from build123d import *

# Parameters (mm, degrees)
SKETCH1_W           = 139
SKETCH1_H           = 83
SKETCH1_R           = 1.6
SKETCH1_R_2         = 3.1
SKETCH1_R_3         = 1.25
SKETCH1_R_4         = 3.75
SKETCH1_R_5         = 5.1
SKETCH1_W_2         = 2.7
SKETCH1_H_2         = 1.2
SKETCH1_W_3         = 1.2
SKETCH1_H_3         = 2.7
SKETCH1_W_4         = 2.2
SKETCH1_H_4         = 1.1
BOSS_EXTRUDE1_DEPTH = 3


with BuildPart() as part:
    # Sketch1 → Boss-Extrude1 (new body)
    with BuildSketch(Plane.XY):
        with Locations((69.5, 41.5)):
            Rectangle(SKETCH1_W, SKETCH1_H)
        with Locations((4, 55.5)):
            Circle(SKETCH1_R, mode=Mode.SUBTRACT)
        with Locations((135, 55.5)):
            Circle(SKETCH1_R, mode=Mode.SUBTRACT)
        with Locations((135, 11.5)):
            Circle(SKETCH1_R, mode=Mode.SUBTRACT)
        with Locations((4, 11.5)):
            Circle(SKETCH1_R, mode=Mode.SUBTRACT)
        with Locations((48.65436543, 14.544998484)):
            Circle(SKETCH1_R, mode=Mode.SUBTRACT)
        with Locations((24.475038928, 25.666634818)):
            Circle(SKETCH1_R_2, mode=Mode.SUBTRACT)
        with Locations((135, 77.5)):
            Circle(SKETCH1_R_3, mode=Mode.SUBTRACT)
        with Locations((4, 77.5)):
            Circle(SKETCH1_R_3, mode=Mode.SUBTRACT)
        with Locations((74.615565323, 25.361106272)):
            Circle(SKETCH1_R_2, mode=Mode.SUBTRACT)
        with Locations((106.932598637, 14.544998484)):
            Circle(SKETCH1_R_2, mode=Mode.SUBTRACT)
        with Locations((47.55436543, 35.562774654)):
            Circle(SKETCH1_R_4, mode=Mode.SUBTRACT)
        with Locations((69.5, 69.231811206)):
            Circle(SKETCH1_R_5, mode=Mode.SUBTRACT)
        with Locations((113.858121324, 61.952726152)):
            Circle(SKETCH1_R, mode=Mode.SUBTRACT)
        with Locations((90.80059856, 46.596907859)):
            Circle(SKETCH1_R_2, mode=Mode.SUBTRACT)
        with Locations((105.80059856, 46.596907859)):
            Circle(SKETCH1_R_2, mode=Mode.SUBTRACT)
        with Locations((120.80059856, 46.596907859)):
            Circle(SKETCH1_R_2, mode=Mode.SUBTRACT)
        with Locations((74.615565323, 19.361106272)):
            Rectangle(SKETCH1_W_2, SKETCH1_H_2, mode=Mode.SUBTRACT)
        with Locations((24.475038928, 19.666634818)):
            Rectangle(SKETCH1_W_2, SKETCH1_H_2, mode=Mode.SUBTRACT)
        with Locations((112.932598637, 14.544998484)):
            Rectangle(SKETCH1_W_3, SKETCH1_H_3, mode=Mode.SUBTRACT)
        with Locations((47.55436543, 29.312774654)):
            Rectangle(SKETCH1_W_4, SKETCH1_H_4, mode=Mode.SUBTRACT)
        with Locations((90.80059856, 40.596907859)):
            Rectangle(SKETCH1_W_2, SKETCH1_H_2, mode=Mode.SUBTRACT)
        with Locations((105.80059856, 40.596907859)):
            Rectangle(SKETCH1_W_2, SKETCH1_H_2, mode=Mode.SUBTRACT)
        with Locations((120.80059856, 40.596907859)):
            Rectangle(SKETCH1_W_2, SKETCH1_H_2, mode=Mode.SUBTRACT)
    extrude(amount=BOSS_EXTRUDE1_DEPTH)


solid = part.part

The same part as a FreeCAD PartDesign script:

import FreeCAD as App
import Part
import Sketcher

V = App.Vector
Q = App.Units.Quantity

doc = App.newDocument("Part")
params = doc.addObject("Spreadsheet::Sheet", "Params")
for row, (alias, value) in enumerate([
    ("sketch1_diameter", "3.2 mm"),
    ("sketch1_diameter2", "6.2 mm"),
    ("sketch1_diameter3", "7.5 mm"),
    ("sketch1_diameter4", "2.5 mm"),
    ("sketch1_diameter5", "10.2 mm"),
    ("pad1_length", "3 mm"),
], start=1):
    params.set(f"A{row}", alias)
    params.set(f"B{row}", "=" + value)
    params.setAlias(f"B{row}", alias)

body = doc.addObject("PartDesign::Body", "Body")

sketch1 = body.newObject("Sketcher::SketchObject", "Sketch")
sketch1.AttachmentSupport = (doc.getObject("XY_Plane"), [""])
sketch1.MapMode = "FlatFace"
sketch1.addGeometry(Part.LineSegment(V(0, 83, 0), V(0, 0, 0)), False)
sketch1.addGeometry(Part.LineSegment(V(0, 0, 0), V(139, 0, 0)), False)
sketch1.addGeometry(Part.LineSegment(V(139, 0, 0), V(139, 83, 0)), False)
sketch1.addGeometry(Part.LineSegment(V(139, 83, 0), V(0, 83, 0)), False)
sketch1.addGeometry(Part.Circle(V(4, 11.5, 0), V(0, 0, 1), 1.6), False)
sketch1.addGeometry(Part.LineSegment(V(25.825039, 19.066635, 0), V(23.125039, 19.066635, 0)), False)
sketch1.addGeometry(Part.LineSegment(V(23.125039, 19.066635, 0), V(23.125039, 20.266635, 0)), False)
sketch1.addGeometry(Part.LineSegment(V(23.125039, 20.266635, 0), V(25.825039, 20.266635, 0)), False)
sketch1.addGeometry(Part.LineSegment(V(25.825039, 20.266635, 0), V(25.825039, 19.066635, 0)), False)
sketch1.addGeometry(Part.Circle(V(24.475039, 25.666635, 0), V(0, 0, 1), 3.1), False)
sketch1.addGeometry(Part.Circle(V(48.654365, 14.544998, 0), V(0, 0, 1), 1.6), False)
sketch1.addGeometry(Part.LineSegment(V(48.654365, 28.762775, 0), V(46.454365, 28.762775, 0)), False)
sketch1.addGeometry(Part.LineSegment(V(46.454365, 28.762775, 0), V(46.454365, 29.862775, 0)), False)
sketch1.addGeometry(Part.LineSegment(V(46.454365, 29.862775, 0), V(48.654365, 29.862775, 0)), False)
sketch1.addGeometry(Part.LineSegment(V(48.654365, 29.862775, 0), V(48.654365, 28.762775, 0)), False)
sketch1.addGeometry(Part.Circle(V(47.554365, 35.562775, 0), V(0, 0, 1), 3.75), False)
sketch1.addGeometry(Part.LineSegment(V(75.965565, 18.761106, 0), V(73.265565, 18.761106, 0)), False)
sketch1.addGeometry(Part.LineSegment(V(73.265565, 18.761106, 0), V(73.265565, 19.961106, 0)), False)
sketch1.addGeometry(Part.LineSegment(V(73.265565, 19.961106, 0), V(75.965565, 19.961106, 0)), False)
sketch1.addGeometry(Part.LineSegment(V(75.965565, 19.961106, 0), V(75.965565, 18.761106, 0)), False)
sketch1.addGeometry(Part.Circle(V(74.615565, 25.361106, 0), V(0, 0, 1), 3.1), False)
sketch1.addGeometry(Part.Circle(V(106.932599, 14.544998, 0), V(0, 0, 1), 3.1), False)
sketch1.addGeometry(Part.LineSegment(V(113.532599, 13.194998, 0), V(112.332599, 13.194998, 0)), False)
sketch1.addGeometry(Part.LineSegment(V(112.332599, 13.194998, 0), V(112.332599, 15.894998, 0)), False)
sketch1.addGeometry(Part.LineSegment(V(112.332599, 15.894998, 0), V(113.532599, 15.894998, 0)), False)
sketch1.addGeometry(Part.LineSegment(V(113.532599, 15.894998, 0), V(113.532599, 13.194998, 0)), False)
sketch1.addGeometry(Part.Circle(V(135, 11.5, 0), V(0, 0, 1), 1.6), False)
sketch1.addGeometry(Part.LineSegment(V(92.150599, 39.996908, 0), V(89.450599, 39.996908, 0)), False)
sketch1.addGeometry(Part.LineSegment(V(89.450599, 39.996908, 0), V(89.450599, 41.196908, 0)), False)
sketch1.addGeometry(Part.LineSegment(V(89.450599, 41.196908, 0), V(92.150599, 41.196908, 0)), False)
sketch1.addGeometry(Part.LineSegment(V(92.150599, 41.196908, 0), V(92.150599, 39.996908, 0)), False)
sketch1.addGeometry(Part.LineSegment(V(107.150599, 39.996908, 0), V(104.450599, 39.996908, 0)), False)
sketch1.addGeometry(Part.LineSegment(V(104.450599, 39.996908, 0), V(104.450599, 41.196908, 0)), False)
sketch1.addGeometry(Part.LineSegment(V(104.450599, 41.196908, 0), V(107.150599, 41.196908, 0)), False)
sketch1.addGeometry(Part.LineSegment(V(107.150599, 41.196908, 0), V(107.150599, 39.996908, 0)), False)
sketch1.addGeometry(Part.LineSegment(V(122.150599, 39.996908, 0), V(119.450599, 39.996908, 0)), False)
sketch1.addGeometry(Part.LineSegment(V(119.450599, 39.996908, 0), V(119.450599, 41.196908, 0)), False)
sketch1.addGeometry(Part.LineSegment(V(119.450599, 41.196908, 0), V(122.150599, 41.196908, 0)), False)
sketch1.addGeometry(Part.LineSegment(V(122.150599, 41.196908, 0), V(122.150599, 39.996908, 0)), False)
sketch1.addGeometry(Part.Circle(V(4, 55.5, 0), V(0, 0, 1), 1.6), False)
sketch1.addGeometry(Part.Circle(V(4, 77.5, 0), V(0, 0, 1), 1.25), False)
sketch1.addGeometry(Part.Circle(V(90.800599, 46.596908, 0), V(0, 0, 1), 3.1), False)
sketch1.addGeometry(Part.Circle(V(105.800599, 46.596908, 0), V(0, 0, 1), 3.1), False)
sketch1.addGeometry(Part.Circle(V(120.800599, 46.596908, 0), V(0, 0, 1), 3.1), False)
sketch1.addGeometry(Part.Circle(V(135, 55.5, 0), V(0, 0, 1), 1.6), False)
sketch1.addGeometry(Part.Circle(V(69.5, 69.231811, 0), V(0, 0, 1), 5.1), False)
sketch1.addGeometry(Part.Circle(V(113.858121, 61.952726, 0), V(0, 0, 1), 1.6), False)
sketch1.addGeometry(Part.Circle(V(135, 77.5, 0), V(0, 0, 1), 1.25), False)
sketch1.addConstraint(Sketcher.Constraint("Coincident", 0, 2, 1, 1))
sketch1.addConstraint(Sketcher.Constraint("Coincident", 1, 2, 2, 1))
sketch1.addConstraint(Sketcher.Constraint("Coincident", 2, 2, 3, 1))
sketch1.addConstraint(Sketcher.Constraint("Coincident", 3, 2, 0, 1))
sketch1.addConstraint(Sketcher.Constraint("Coincident", 5, 2, 6, 1))
sketch1.addConstraint(Sketcher.Constraint("Coincident", 6, 2, 7, 1))
sketch1.addConstraint(Sketcher.Constraint("Coincident", 7, 2, 8, 1))
sketch1.addConstraint(Sketcher.Constraint("Coincident", 8, 2, 5, 1))
sketch1.addConstraint(Sketcher.Constraint("Coincident", 11, 2, 12, 1))
sketch1.addConstraint(Sketcher.Constraint("Coincident", 12, 2, 13, 1))
sketch1.addConstraint(Sketcher.Constraint("Coincident", 13, 2, 14, 1))
sketch1.addConstraint(Sketcher.Constraint("Coincident", 14, 2, 11, 1))
sketch1.addConstraint(Sketcher.Constraint("Coincident", 16, 2, 17, 1))
sketch1.addConstraint(Sketcher.Constraint("Coincident", 17, 2, 18, 1))
sketch1.addConstraint(Sketcher.Constraint("Coincident", 18, 2, 19, 1))
sketch1.addConstraint(Sketcher.Constraint("Coincident", 19, 2, 16, 1))
sketch1.addConstraint(Sketcher.Constraint("Coincident", 22, 2, 23, 1))
sketch1.addConstraint(Sketcher.Constraint("Coincident", 23, 2, 24, 1))
sketch1.addConstraint(Sketcher.Constraint("Coincident", 24, 2, 25, 1))
sketch1.addConstraint(Sketcher.Constraint("Coincident", 25, 2, 22, 1))
sketch1.addConstraint(Sketcher.Constraint("Coincident", 27, 2, 28, 1))
sketch1.addConstraint(Sketcher.Constraint("Coincident", 28, 2, 29, 1))
sketch1.addConstraint(Sketcher.Constraint("Coincident", 29, 2, 30, 1))
sketch1.addConstraint(Sketcher.Constraint("Coincident", 30, 2, 27, 1))
sketch1.addConstraint(Sketcher.Constraint("Coincident", 31, 2, 32, 1))
sketch1.addConstraint(Sketcher.Constraint("Coincident", 32, 2, 33, 1))
sketch1.addConstraint(Sketcher.Constraint("Coincident", 33, 2, 34, 1))
sketch1.addConstraint(Sketcher.Constraint("Coincident", 34, 2, 31, 1))
sketch1.addConstraint(Sketcher.Constraint("Coincident", 35, 2, 36, 1))
sketch1.addConstraint(Sketcher.Constraint("Coincident", 36, 2, 37, 1))
sketch1.addConstraint(Sketcher.Constraint("Coincident", 37, 2, 38, 1))
sketch1.addConstraint(Sketcher.Constraint("Coincident", 38, 2, 35, 1))
sketch1.addConstraint(Sketcher.Constraint("Vertical", 0))
sketch1.addConstraint(Sketcher.Constraint("Horizontal", 1))
sketch1.addConstraint(Sketcher.Constraint("Vertical", 2))
sketch1.addConstraint(Sketcher.Constraint("Horizontal", 3))
sketch1.addConstraint(Sketcher.Constraint("Horizontal", 5))
sketch1.addConstraint(Sketcher.Constraint("Vertical", 6))
sketch1.addConstraint(Sketcher.Constraint("Horizontal", 7))
sketch1.addConstraint(Sketcher.Constraint("Vertical", 8))
sketch1.addConstraint(Sketcher.Constraint("Horizontal", 11))
sketch1.addConstraint(Sketcher.Constraint("Vertical", 12))
sketch1.addConstraint(Sketcher.Constraint("Horizontal", 13))
sketch1.addConstraint(Sketcher.Constraint("Vertical", 14))
sketch1.addConstraint(Sketcher.Constraint("Horizontal", 16))
sketch1.addConstraint(Sketcher.Constraint("Vertical", 17))
sketch1.addConstraint(Sketcher.Constraint("Horizontal", 18))
sketch1.addConstraint(Sketcher.Constraint("Vertical", 19))
sketch1.addConstraint(Sketcher.Constraint("Horizontal", 22))
sketch1.addConstraint(Sketcher.Constraint("Vertical", 23))
sketch1.addConstraint(Sketcher.Constraint("Horizontal", 24))
sketch1.addConstraint(Sketcher.Constraint("Vertical", 25))
sketch1.addConstraint(Sketcher.Constraint("Horizontal", 27))
sketch1.addConstraint(Sketcher.Constraint("Vertical", 28))
sketch1.addConstraint(Sketcher.Constraint("Horizontal", 29))
sketch1.addConstraint(Sketcher.Constraint("Vertical", 30))
sketch1.addConstraint(Sketcher.Constraint("Horizontal", 31))
sketch1.addConstraint(Sketcher.Constraint("Vertical", 32))
sketch1.addConstraint(Sketcher.Constraint("Horizontal", 33))
sketch1.addConstraint(Sketcher.Constraint("Vertical", 34))
sketch1.addConstraint(Sketcher.Constraint("Horizontal", 35))
sketch1.addConstraint(Sketcher.Constraint("Vertical", 36))
sketch1.addConstraint(Sketcher.Constraint("Horizontal", 37))
sketch1.addConstraint(Sketcher.Constraint("Vertical", 38))
sketch1.addConstraint(Sketcher.Constraint("Coincident", 0, 2, -1, 1))
sketch1.addConstraint(Sketcher.Constraint("Equal", 4, 10))
sketch1.addConstraint(Sketcher.Constraint("Equal", 9, 20))
sketch1.addConstraint(Sketcher.Constraint("Equal", 20, 21))
sketch1.addConstraint(Sketcher.Constraint("Equal", 10, 26))
sketch1.addConstraint(Sketcher.Constraint("Equal", 26, 39))
sketch1.addConstraint(Sketcher.Constraint("Equal", 21, 41))
sketch1.addConstraint(Sketcher.Constraint("Equal", 41, 42))
sketch1.addConstraint(Sketcher.Constraint("Equal", 42, 43))
sketch1.addConstraint(Sketcher.Constraint("Equal", 39, 44))
sketch1.addConstraint(Sketcher.Constraint("Equal", 44, 46))
sketch1.addConstraint(Sketcher.Constraint("Equal", 40, 47))
sketch1.addConstraint(Sketcher.Constraint("Horizontal", 10, 3, 21, 3))
sketch1.addConstraint(Sketcher.Constraint("Horizontal", 4, 3, 26, 3))
sketch1.addConstraint(Sketcher.Constraint("Horizontal", 41, 3, 42, 3))
sketch1.addConstraint(Sketcher.Constraint("Horizontal", 42, 3, 43, 3))
sketch1.addConstraint(Sketcher.Constraint("Horizontal", 39, 3, 44, 3))
sketch1.addConstraint(Sketcher.Constraint("Horizontal", 40, 3, 47, 3))
sketch1.addConstraint(Sketcher.Constraint("Horizontal", 30, 2, 31, 2))
sketch1.addConstraint(Sketcher.Constraint("Horizontal", 29, 2, 32, 2))
sketch1.addConstraint(Sketcher.Constraint("Horizontal", 34, 2, 35, 2))
sketch1.addConstraint(Sketcher.Constraint("Horizontal", 33, 2, 36, 2))
sketch1.addConstraint(Sketcher.Constraint("Vertical", 4, 3, 39, 3))
sketch1.addConstraint(Sketcher.Constraint("Vertical", 39, 3, 40, 3))
sketch1.addConstraint(Sketcher.Constraint("Vertical", 26, 3, 44, 3))
sketch1.addConstraint(Sketcher.Constraint("Vertical", 44, 3, 47, 3))
sketch1.addConstraint(Sketcher.Constraint("Vertical", 10, 3, 13, 2))
sketch1.addConstraint(Sketcher.Constraint("Equal", 7, 16))
sketch1.addConstraint(Sketcher.Constraint("Equal", 18, 27))
sketch1.addConstraint(Sketcher.Constraint("Equal", 29, 31))
sketch1.addConstraint(Sketcher.Constraint("Equal", 33, 35))
sketch1.addConstraint(Sketcher.Constraint("Equal", 24, 6))
sketch1.addConstraint(Sketcher.Constraint("Equal", 8, 17))
sketch1.addConstraint(Sketcher.Constraint("Equal", 37, 23))
sketch1.addConstraint(Sketcher.Constraint("Equal", 19, 28))
sketch1.addConstraint(Sketcher.Constraint("Diameter", 4, Q("3.2 mm")))
sketch1.addConstraint(Sketcher.Constraint("Diameter", 9, Q("6.2 mm")))
sketch1.addConstraint(Sketcher.Constraint("Diameter", 15, Q("7.5 mm")))
sketch1.addConstraint(Sketcher.Constraint("Diameter", 40, Q("2.5 mm")))
sketch1.addConstraint(Sketcher.Constraint("Diameter", 45, Q("10.2 mm")))
sketch1.addConstraint(Sketcher.Constraint("DistanceX", 1, 1, 1, 2, Q("139 mm")))
sketch1.addConstraint(Sketcher.Constraint("DistanceY", 0, 2, 0, 1, Q("83 mm")))
sketch1.addConstraint(Sketcher.Constraint("DistanceX", 5, 2, 5, 1, Q("2.7 mm")))
sketch1.addConstraint(Sketcher.Constraint("DistanceX", 11, 2, 11, 1, Q("2.2 mm")))
sketch1.addConstraint(Sketcher.Constraint("DistanceX", 22, 2, 22, 1, Q("1.2 mm")))
sketch1.addConstraint(Sketcher.Constraint("DistanceY", 12, 1, 12, 2, Q("1.1 mm")))
sketch1.addConstraint(Sketcher.Constraint("DistanceX", -1, 1, 4, 3, Q("4 mm")))
sketch1.addConstraint(Sketcher.Constraint("DistanceX", -1, 1, 26, 3, Q("135 mm")))
sketch1.addConstraint(Sketcher.Constraint("DistanceY", 4, 3, 39, 3, Q("44 mm")))
sketch1.addConstraint(Sketcher.Constraint("DistanceY", 39, 3, 40, 3, Q("22 mm")))
sketch1.addConstraint(Sketcher.Constraint("DistanceX", 41, 3, 42, 3, Q("15 mm")))
sketch1.addConstraint(Sketcher.Constraint("DistanceX", 42, 3, 43, 3, Q("15 mm")))
sketch1.addConstraint(Sketcher.Constraint("DistanceX", 27, 2, 31, 2, Q("15 mm")))
sketch1.addConstraint(Sketcher.Constraint("DistanceX", 31, 2, 35, 2, Q("15 mm")))
sketch1.addConstraint(Sketcher.Constraint("DistanceY", -1, 1, 4, 3, Q("11.5 mm")))
sketch1.addConstraint(Sketcher.Constraint("DistanceX", -1, 1, 45, 3, Q("69.5 mm")))
sketch1.addConstraint(Sketcher.Constraint("DistanceX", 15, 3, 10, 3, Q("1.1 mm")))
sketch1.addConstraint(Sketcher.Constraint("DistanceY", 5, 2, 9, 3, Q("6.6 mm")))
sketch1.addConstraint(Sketcher.Constraint("DistanceY", 11, 2, 15, 3, Q("6.8 mm")))
sketch1.addConstraint(Sketcher.Constraint("DistanceY", 16, 2, 20, 3, Q("6.6 mm")))
sketch1.addConstraint(Sketcher.Constraint("DistanceX", 21, 3, 22, 2, Q("5.4 mm")))
sketch1.addConstraint(Sketcher.Constraint("DistanceY", 27, 2, 41, 3, Q("6.6 mm")))
sketch1.addConstraint(Sketcher.Constraint("DistanceX", 5, 2, 9, 3, Q("1.35 mm")))
sketch1.addConstraint(Sketcher.Constraint("DistanceX", 16, 2, 20, 3, Q("1.35 mm")))
sketch1.addConstraint(Sketcher.Constraint("DistanceY", 22, 2, 21, 3, Q("1.35 mm")))
sketch1.addConstraint(Sketcher.Constraint("DistanceX", 27, 2, 41, 3, Q("1.35 mm")))
sketch1.addConstraint(Sketcher.Constraint("DistanceY", -1, 1, 10, 3, Q("14.544998 mm")))
sketch1.addConstraint(Sketcher.Constraint("DistanceX", 41, 3, 21, 3, Q("16.132 mm")))
sketch1.addConstraint(Sketcher.Constraint("DistanceX", -1, 1, 21, 3, Q("106.932599 mm")))
sketch1.addConstraint(Sketcher.Constraint("DistanceX", 10, 3, 20, 3, Q("25.9612 mm")))
sketch1.addConstraint(Sketcher.Constraint("DistanceY", 20, 3, 41, 3, Q("21.235802 mm")))
sketch1.addConstraint(Sketcher.Constraint("DistanceX", -1, 1, 9, 3, Q("24.475039 mm")))
sketch1.addConstraint(Sketcher.Constraint("DistanceY", -1, 1, 45, 3, Q("69.231811 mm")))
sketch1.addConstraint(Sketcher.Constraint("DistanceX", -1, 1, 46, 3, Q("113.858121 mm")))
sketch1.addConstraint(Sketcher.Constraint("DistanceY", 9, 3, 15, 3, Q("9.89614 mm")))
sketch1.addConstraint(Sketcher.Constraint("DistanceY", 20, 3, 15, 3, Q("10.201668 mm")))
sketch1.addConstraint(Sketcher.Constraint("DistanceY", 21, 3, 41, 3, Q("32.051909 mm")))
sketch1.addConstraint(Sketcher.Constraint("DistanceY", 43, 3, 46, 3, Q("15.355818 mm")))
sketch1.addConstraint(Sketcher.Constraint("DistanceX", -1, 1, 10, 3, Q("48.654365 mm")))
sketch1.setExpression("Constraints[99]", "Params.sketch1_diameter")
sketch1.setExpression("Constraints[100]", "Params.sketch1_diameter2")
sketch1.setExpression("Constraints[101]", "Params.sketch1_diameter3")
sketch1.setExpression("Constraints[102]", "Params.sketch1_diameter4")
sketch1.setExpression("Constraints[103]", "Params.sketch1_diameter5")
pad1 = body.newObject("PartDesign::Pad", "Pad")
pad1.Profile = sketch1
pad1.setExpression("Length", "Params.pad1_length")

doc.recompute()
